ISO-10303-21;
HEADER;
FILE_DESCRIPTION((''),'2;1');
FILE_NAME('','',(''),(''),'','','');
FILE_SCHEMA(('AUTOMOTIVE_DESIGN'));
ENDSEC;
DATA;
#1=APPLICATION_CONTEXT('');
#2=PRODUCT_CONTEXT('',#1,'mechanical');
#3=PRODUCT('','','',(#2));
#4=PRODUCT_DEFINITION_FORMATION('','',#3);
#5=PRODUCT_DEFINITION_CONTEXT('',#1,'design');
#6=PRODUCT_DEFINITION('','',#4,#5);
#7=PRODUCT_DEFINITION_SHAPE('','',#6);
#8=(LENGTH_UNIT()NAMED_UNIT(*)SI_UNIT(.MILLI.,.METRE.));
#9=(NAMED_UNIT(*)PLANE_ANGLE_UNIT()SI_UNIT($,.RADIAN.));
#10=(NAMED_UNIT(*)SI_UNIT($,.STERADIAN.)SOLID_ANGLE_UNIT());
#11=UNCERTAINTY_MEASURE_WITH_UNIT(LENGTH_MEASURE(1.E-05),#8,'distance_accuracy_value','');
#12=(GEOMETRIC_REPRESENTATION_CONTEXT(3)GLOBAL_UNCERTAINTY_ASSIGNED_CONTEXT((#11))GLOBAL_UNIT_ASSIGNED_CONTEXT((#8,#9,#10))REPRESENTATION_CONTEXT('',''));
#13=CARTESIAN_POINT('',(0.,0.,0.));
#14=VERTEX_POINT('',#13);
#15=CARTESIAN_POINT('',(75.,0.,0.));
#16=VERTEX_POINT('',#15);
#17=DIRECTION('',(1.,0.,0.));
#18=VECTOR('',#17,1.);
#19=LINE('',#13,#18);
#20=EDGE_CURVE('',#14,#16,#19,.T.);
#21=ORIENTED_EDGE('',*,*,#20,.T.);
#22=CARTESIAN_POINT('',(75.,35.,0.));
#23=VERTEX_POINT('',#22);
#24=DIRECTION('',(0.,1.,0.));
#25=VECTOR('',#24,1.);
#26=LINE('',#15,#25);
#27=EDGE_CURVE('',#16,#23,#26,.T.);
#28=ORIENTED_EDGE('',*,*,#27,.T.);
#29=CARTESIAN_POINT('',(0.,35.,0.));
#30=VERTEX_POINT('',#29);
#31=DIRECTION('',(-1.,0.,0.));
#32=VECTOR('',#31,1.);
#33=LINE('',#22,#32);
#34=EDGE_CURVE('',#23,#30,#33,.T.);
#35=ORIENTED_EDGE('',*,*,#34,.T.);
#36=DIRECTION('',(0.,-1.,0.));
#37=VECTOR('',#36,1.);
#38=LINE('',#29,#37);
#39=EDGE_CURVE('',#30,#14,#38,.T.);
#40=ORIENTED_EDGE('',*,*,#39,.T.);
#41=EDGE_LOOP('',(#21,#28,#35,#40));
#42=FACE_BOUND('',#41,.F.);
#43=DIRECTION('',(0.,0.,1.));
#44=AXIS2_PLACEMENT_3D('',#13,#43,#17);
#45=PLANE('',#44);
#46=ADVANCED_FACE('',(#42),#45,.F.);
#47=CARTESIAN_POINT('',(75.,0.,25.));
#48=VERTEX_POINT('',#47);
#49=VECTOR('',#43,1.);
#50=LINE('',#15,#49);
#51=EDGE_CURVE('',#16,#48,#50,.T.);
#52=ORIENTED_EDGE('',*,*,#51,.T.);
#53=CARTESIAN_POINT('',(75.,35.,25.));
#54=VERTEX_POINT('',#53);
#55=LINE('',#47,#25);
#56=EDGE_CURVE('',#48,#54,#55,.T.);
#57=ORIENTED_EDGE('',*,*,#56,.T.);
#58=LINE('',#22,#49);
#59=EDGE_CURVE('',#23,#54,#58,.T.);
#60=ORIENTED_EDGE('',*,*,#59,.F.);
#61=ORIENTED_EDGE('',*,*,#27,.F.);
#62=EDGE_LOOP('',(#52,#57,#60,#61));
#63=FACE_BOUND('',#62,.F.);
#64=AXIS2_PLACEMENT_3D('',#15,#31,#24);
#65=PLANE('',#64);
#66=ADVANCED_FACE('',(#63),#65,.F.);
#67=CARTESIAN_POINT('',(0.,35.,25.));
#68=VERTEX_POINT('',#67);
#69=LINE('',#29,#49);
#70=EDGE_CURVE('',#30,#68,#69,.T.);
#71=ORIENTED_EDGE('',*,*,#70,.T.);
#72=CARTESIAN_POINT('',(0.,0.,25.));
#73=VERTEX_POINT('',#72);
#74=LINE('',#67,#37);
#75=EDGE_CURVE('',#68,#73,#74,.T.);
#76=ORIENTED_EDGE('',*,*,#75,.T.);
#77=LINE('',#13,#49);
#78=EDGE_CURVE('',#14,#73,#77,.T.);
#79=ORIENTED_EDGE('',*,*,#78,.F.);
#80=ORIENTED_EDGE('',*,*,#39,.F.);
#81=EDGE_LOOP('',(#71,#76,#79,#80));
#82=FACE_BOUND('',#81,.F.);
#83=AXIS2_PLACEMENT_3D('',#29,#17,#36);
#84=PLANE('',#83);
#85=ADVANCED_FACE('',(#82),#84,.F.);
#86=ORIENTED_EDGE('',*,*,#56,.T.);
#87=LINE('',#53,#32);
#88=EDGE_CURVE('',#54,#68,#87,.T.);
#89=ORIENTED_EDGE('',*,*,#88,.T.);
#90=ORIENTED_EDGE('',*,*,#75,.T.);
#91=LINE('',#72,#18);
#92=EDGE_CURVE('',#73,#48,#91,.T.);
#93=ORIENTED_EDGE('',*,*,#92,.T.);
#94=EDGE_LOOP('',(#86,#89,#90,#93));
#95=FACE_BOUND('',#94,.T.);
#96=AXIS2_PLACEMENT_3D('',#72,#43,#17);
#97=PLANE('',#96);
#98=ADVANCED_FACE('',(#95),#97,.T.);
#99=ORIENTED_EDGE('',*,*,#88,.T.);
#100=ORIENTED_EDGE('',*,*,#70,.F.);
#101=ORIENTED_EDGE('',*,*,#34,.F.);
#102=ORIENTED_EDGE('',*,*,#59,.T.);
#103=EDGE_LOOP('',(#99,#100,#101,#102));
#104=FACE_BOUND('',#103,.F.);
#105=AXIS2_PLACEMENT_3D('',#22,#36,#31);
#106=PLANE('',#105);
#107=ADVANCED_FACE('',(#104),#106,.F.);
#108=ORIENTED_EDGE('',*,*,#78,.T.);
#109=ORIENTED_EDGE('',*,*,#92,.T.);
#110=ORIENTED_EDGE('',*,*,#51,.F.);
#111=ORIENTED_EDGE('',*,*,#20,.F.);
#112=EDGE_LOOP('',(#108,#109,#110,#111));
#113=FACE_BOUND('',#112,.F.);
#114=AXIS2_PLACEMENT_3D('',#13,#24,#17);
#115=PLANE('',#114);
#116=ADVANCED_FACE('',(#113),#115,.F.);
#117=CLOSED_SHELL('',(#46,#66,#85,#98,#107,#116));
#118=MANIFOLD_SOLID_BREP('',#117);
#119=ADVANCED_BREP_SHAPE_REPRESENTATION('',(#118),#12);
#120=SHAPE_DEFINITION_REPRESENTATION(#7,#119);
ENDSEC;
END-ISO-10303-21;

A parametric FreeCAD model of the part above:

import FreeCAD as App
import Part
import Sketcher
Q = App.Units.Quantity


def add_polygon(sketch, points):
    """Adds a closed chain of lines whose ends are joined by coincident constraints."""
    first, n = sketch.GeometryCount, len(points)
    for a, b in zip(points, points[1:] + points[:1]):
        sketch.addGeometry(Part.LineSegment(App.Vector(*a, 0), App.Vector(*b, 0)), False)
    for i in range(n):
        sketch.addConstraint(Sketcher.Constraint("Coincident", first + i, 2, first + (i + 1) % n, 1))

doc = App.newDocument("Part")
body = doc.addObject("PartDesign::Body", "Body")

# Sketch on XY plane
sketch1 = body.newObject("Sketcher::SketchObject", "Sketch")
sketch1.AttachmentSupport = (doc.getObject("XY_Plane"), [""])
sketch1.MapMode = "FlatFace"
add_polygon(sketch1, [(0, 35), (0, 0), (75, 0), (75, 35)])  # lines 0-3
sketch1.addConstraint([
    Sketcher.Constraint("Vertical", 0),
    Sketcher.Constraint("Horizontal", 1),
    Sketcher.Constraint("Vertical", 2),
    Sketcher.Constraint("Horizontal", 3),
    Sketcher.Constraint("Coincident", 0, 2, -1, 1),
    Sketcher.Constraint("DistanceX", 1, 1, 1, 2, Q("75 mm")),
    Sketcher.Constraint("DistanceY", 0, 2, 0, 1, Q("35 mm")),
])
pad1 = body.newObject("PartDesign::Pad", "Pad")
pad1.Profile = sketch1
pad1.Length = 25

doc.recompute()
